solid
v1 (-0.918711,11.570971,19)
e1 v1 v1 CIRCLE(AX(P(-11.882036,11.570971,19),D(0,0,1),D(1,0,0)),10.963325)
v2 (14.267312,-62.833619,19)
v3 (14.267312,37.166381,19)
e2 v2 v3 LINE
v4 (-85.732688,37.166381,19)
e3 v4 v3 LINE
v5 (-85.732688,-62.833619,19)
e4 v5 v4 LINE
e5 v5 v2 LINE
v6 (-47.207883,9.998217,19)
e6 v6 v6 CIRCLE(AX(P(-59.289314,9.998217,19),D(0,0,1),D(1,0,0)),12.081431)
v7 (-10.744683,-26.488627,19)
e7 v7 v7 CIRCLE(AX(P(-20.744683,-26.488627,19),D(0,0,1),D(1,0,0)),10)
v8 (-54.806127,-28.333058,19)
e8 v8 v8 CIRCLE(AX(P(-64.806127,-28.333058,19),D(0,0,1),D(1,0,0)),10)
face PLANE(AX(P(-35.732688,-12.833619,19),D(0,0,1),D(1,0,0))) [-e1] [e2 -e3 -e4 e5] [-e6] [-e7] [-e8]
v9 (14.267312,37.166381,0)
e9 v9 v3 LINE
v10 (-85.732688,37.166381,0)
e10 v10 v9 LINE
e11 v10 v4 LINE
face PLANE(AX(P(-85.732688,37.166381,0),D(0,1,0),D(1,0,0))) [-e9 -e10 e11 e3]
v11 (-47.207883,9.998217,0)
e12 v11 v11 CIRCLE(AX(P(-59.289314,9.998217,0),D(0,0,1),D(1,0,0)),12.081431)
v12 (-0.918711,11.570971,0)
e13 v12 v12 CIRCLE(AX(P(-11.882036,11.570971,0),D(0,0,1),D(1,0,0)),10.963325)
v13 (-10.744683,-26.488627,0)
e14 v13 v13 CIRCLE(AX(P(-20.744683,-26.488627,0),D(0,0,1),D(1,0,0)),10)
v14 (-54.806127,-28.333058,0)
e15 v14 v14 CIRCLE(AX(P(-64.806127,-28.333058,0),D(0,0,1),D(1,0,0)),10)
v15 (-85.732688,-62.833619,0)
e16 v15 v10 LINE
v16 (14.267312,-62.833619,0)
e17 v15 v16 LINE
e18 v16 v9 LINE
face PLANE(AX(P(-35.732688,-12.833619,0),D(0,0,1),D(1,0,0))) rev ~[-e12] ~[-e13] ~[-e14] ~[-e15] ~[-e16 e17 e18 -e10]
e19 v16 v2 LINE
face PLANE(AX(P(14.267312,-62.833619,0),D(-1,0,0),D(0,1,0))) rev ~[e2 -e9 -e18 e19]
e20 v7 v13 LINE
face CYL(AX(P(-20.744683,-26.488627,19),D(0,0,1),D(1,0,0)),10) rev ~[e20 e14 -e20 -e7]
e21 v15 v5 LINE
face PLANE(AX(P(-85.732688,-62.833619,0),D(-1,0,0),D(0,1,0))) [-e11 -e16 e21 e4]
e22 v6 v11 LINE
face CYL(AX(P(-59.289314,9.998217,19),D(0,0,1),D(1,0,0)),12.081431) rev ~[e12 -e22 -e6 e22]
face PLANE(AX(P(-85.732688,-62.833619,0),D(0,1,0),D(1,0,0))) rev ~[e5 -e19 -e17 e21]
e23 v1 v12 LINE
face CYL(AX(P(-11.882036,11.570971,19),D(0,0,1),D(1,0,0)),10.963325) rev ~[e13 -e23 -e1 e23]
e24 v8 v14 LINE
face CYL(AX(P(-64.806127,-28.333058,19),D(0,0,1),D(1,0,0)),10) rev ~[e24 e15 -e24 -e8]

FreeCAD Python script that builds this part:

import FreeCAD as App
import Part
import Sketcher
Q = App.Units.Quantity


def add_polygon(sketch, points):
    """Adds a closed chain of lines whose ends are joined by coincident constraints."""
    first, n = sketch.GeometryCount, len(points)
    for a, b in zip(points, points[1:] + points[:1]):
        sketch.addGeometry(Part.LineSegment(App.Vector(*a, 0), App.Vector(*b, 0)), False)
    for i in range(n):
        sketch.addConstraint(Sketcher.Constraint("Coincident", first + i, 2, first + (i + 1) % n, 1))

doc = App.newDocument("Part")
params = doc.addObject("Spreadsheet::Sheet", "Params")
for row, (alias, value) in enumerate([
    ("sketch1_width", "100 mm"),
    ("pad1_length", "19 mm"),
    ("pocket1_length", "19 mm"),
    ("pocket2_length", "19 mm"),
    ("sketch4_diameter", "20 mm"),
    ("pocket3_length", "19 mm"),
], start=1):
    params.set(f"A{row}", alias)
    params.set(f"B{row}", "=" + value)
    params.setAlias(f"B{row}", alias)

body = doc.addObject("PartDesign::Body", "Body")

# Sketch on XY plane
sketch1 = body.newObject("Sketcher::SketchObject", "Sketch")
sketch1.AttachmentSupport = (doc.getObject("XY_Plane"), [""])
sketch1.MapMode = "FlatFace"
add_polygon(sketch1, [(-85.732688, 37.166381), (-85.732688, -62.833619), (14.267312, -62.833619), (14.267312, 37.166381)])  # lines 0-3
sketch1.addConstraint(Sketcher.Constraint("Vertical", 0))
sketch1.addConstraint(Sketcher.Constraint("Horizontal", 1))
sketch1.addConstraint(Sketcher.Constraint("Vertical", 2))
sketch1.addConstraint(Sketcher.Constraint("Horizontal", 3))
sketch1.addConstraint(Sketcher.Constraint("Equal", 3, 0))
sketch1.addConstraint(Sketcher.Constraint("DistanceX", 1, 1, 1, 2, Q("100 mm")))
sketch1.addConstraint(Sketcher.Constraint("DistanceY", 0, 2, -1, 1, Q("62.833619 mm")))
sketch1.addConstraint(Sketcher.Constraint("DistanceX", 0, 2, -1, 1, Q("85.732688 mm")))
sketch1.setExpression("Constraints[9]", "Params.sketch1_width")
pad1 = body.newObject("PartDesign::Pad", "Pad")
pad1.Profile = sketch1
pad1.setExpression("Length", "Params.pad1_length")

# Sketch on XY plane
sketch2 = body.newObject("Sketcher::SketchObject", "Sketch001")
sketch2.AttachmentSupport = (doc.getObject("XY_Plane"), [""])
sketch2.MapMode = "FlatFace"
sketch2.AttachmentOffset = App.Placement(App.Vector(0, 0, 19), App.Rotation())
sketch2.addGeometry(Part.Circle(App.Vector(-59.289314, 9.998217, 0), App.Vector(0, 0, 1), 12.081431), False)
sketch2.addConstraint(Sketcher.Constraint("Diameter", 0, Q("24.162862 mm")))
sketch2.addConstraint(Sketcher.Constraint("DistanceX", 0, 3, -1, 1, Q("59.289314 mm")))
sketch2.addConstraint(Sketcher.Constraint("DistanceY", -1, 1, 0, 3, Q("9.998217 mm")))
pocket1 = body.newObject("PartDesign::Pocket", "Pocket")
pocket1.Profile = sketch2
pocket1.setExpression("Length", "Params.pocket1_length")

# Sketch on XY plane
sketch3 = body.newObject("Sketcher::SketchObject", "Sketch002")
sketch3.AttachmentSupport = (doc.getObject("XY_Plane"), [""])
sketch3.MapMode = "FlatFace"
sketch3.AttachmentOffset = App.Placement(App.Vector(0, 0, 19), App.Rotation())
sketch3.addGeometry(Part.Circle(App.Vector(-11.882036, 11.570971, 0), App.Vector(0, 0, 1), 10.963325), False)
sketch3.addConstraint(Sketcher.Constraint("Diameter", 0, Q("21.92665 mm")))
sketch3.addConstraint(Sketcher.Constraint("DistanceY", -1, 1, 0, 3, Q("11.570971 mm")))
sketch3.addConstraint(Sketcher.Constraint("DistanceX", 0, 3, -1, 1, Q("11.882036 mm")))
pocket2 = body.newObject("PartDesign::Pocket", "Pocket001")
pocket2.Profile = sketch3
pocket2.setExpression("Length", "Params.pocket2_length")

# Sketch on XY plane
sketch4 = body.newObject("Sketcher::SketchObject", "Sketch003")
sketch4.AttachmentSupport = (doc.getObject("XY_Plane"), [""])
sketch4.MapMode = "FlatFace"
sketch4.AttachmentOffset = App.Placement(App.Vector(0, 0, 19), App.Rotation())
sketch4.addGeometry(Part.Circle(App.Vector(-64.806127, -28.333058, 0), App.Vector(0, 0, 1), 10), False)
sketch4.addGeometry(Part.Circle(App.Vector(-20.744683, -26.488627, 0), App.Vector(0, 0, 1), 10), False)
sketch4.addConstraint(Sketcher.Constraint("Equal", 0, 1))
sketch4.addConstraint(Sketcher.Constraint("Diameter", 0, Q("20 mm")))
sketch4.addConstraint(Sketcher.Constraint("DistanceY", 0, 3, -1, 1, Q("28.333058 mm")))
sketch4.addConstraint(Sketcher.Constraint("DistanceY", 0, 3, 1, 3, Q("1.844431 mm")))
sketch4.addConstraint(Sketcher.Constraint("DistanceX", 0, 3, -1, 1, Q("64.806127 mm")))
sketch4.addConstraint(Sketcher.Constraint("DistanceX", 1, 3, -1, 1, Q("20.744683 mm")))
sketch4.setExpression("Constraints[1]", "Params.sketch4_diameter")
pocket3 = body.newObject("PartDesign::Pocket", "Pocket002")
pocket3.Profile = sketch4
pocket3.setExpression("Length", "Params.pocket3_length")

doc.recompute()
